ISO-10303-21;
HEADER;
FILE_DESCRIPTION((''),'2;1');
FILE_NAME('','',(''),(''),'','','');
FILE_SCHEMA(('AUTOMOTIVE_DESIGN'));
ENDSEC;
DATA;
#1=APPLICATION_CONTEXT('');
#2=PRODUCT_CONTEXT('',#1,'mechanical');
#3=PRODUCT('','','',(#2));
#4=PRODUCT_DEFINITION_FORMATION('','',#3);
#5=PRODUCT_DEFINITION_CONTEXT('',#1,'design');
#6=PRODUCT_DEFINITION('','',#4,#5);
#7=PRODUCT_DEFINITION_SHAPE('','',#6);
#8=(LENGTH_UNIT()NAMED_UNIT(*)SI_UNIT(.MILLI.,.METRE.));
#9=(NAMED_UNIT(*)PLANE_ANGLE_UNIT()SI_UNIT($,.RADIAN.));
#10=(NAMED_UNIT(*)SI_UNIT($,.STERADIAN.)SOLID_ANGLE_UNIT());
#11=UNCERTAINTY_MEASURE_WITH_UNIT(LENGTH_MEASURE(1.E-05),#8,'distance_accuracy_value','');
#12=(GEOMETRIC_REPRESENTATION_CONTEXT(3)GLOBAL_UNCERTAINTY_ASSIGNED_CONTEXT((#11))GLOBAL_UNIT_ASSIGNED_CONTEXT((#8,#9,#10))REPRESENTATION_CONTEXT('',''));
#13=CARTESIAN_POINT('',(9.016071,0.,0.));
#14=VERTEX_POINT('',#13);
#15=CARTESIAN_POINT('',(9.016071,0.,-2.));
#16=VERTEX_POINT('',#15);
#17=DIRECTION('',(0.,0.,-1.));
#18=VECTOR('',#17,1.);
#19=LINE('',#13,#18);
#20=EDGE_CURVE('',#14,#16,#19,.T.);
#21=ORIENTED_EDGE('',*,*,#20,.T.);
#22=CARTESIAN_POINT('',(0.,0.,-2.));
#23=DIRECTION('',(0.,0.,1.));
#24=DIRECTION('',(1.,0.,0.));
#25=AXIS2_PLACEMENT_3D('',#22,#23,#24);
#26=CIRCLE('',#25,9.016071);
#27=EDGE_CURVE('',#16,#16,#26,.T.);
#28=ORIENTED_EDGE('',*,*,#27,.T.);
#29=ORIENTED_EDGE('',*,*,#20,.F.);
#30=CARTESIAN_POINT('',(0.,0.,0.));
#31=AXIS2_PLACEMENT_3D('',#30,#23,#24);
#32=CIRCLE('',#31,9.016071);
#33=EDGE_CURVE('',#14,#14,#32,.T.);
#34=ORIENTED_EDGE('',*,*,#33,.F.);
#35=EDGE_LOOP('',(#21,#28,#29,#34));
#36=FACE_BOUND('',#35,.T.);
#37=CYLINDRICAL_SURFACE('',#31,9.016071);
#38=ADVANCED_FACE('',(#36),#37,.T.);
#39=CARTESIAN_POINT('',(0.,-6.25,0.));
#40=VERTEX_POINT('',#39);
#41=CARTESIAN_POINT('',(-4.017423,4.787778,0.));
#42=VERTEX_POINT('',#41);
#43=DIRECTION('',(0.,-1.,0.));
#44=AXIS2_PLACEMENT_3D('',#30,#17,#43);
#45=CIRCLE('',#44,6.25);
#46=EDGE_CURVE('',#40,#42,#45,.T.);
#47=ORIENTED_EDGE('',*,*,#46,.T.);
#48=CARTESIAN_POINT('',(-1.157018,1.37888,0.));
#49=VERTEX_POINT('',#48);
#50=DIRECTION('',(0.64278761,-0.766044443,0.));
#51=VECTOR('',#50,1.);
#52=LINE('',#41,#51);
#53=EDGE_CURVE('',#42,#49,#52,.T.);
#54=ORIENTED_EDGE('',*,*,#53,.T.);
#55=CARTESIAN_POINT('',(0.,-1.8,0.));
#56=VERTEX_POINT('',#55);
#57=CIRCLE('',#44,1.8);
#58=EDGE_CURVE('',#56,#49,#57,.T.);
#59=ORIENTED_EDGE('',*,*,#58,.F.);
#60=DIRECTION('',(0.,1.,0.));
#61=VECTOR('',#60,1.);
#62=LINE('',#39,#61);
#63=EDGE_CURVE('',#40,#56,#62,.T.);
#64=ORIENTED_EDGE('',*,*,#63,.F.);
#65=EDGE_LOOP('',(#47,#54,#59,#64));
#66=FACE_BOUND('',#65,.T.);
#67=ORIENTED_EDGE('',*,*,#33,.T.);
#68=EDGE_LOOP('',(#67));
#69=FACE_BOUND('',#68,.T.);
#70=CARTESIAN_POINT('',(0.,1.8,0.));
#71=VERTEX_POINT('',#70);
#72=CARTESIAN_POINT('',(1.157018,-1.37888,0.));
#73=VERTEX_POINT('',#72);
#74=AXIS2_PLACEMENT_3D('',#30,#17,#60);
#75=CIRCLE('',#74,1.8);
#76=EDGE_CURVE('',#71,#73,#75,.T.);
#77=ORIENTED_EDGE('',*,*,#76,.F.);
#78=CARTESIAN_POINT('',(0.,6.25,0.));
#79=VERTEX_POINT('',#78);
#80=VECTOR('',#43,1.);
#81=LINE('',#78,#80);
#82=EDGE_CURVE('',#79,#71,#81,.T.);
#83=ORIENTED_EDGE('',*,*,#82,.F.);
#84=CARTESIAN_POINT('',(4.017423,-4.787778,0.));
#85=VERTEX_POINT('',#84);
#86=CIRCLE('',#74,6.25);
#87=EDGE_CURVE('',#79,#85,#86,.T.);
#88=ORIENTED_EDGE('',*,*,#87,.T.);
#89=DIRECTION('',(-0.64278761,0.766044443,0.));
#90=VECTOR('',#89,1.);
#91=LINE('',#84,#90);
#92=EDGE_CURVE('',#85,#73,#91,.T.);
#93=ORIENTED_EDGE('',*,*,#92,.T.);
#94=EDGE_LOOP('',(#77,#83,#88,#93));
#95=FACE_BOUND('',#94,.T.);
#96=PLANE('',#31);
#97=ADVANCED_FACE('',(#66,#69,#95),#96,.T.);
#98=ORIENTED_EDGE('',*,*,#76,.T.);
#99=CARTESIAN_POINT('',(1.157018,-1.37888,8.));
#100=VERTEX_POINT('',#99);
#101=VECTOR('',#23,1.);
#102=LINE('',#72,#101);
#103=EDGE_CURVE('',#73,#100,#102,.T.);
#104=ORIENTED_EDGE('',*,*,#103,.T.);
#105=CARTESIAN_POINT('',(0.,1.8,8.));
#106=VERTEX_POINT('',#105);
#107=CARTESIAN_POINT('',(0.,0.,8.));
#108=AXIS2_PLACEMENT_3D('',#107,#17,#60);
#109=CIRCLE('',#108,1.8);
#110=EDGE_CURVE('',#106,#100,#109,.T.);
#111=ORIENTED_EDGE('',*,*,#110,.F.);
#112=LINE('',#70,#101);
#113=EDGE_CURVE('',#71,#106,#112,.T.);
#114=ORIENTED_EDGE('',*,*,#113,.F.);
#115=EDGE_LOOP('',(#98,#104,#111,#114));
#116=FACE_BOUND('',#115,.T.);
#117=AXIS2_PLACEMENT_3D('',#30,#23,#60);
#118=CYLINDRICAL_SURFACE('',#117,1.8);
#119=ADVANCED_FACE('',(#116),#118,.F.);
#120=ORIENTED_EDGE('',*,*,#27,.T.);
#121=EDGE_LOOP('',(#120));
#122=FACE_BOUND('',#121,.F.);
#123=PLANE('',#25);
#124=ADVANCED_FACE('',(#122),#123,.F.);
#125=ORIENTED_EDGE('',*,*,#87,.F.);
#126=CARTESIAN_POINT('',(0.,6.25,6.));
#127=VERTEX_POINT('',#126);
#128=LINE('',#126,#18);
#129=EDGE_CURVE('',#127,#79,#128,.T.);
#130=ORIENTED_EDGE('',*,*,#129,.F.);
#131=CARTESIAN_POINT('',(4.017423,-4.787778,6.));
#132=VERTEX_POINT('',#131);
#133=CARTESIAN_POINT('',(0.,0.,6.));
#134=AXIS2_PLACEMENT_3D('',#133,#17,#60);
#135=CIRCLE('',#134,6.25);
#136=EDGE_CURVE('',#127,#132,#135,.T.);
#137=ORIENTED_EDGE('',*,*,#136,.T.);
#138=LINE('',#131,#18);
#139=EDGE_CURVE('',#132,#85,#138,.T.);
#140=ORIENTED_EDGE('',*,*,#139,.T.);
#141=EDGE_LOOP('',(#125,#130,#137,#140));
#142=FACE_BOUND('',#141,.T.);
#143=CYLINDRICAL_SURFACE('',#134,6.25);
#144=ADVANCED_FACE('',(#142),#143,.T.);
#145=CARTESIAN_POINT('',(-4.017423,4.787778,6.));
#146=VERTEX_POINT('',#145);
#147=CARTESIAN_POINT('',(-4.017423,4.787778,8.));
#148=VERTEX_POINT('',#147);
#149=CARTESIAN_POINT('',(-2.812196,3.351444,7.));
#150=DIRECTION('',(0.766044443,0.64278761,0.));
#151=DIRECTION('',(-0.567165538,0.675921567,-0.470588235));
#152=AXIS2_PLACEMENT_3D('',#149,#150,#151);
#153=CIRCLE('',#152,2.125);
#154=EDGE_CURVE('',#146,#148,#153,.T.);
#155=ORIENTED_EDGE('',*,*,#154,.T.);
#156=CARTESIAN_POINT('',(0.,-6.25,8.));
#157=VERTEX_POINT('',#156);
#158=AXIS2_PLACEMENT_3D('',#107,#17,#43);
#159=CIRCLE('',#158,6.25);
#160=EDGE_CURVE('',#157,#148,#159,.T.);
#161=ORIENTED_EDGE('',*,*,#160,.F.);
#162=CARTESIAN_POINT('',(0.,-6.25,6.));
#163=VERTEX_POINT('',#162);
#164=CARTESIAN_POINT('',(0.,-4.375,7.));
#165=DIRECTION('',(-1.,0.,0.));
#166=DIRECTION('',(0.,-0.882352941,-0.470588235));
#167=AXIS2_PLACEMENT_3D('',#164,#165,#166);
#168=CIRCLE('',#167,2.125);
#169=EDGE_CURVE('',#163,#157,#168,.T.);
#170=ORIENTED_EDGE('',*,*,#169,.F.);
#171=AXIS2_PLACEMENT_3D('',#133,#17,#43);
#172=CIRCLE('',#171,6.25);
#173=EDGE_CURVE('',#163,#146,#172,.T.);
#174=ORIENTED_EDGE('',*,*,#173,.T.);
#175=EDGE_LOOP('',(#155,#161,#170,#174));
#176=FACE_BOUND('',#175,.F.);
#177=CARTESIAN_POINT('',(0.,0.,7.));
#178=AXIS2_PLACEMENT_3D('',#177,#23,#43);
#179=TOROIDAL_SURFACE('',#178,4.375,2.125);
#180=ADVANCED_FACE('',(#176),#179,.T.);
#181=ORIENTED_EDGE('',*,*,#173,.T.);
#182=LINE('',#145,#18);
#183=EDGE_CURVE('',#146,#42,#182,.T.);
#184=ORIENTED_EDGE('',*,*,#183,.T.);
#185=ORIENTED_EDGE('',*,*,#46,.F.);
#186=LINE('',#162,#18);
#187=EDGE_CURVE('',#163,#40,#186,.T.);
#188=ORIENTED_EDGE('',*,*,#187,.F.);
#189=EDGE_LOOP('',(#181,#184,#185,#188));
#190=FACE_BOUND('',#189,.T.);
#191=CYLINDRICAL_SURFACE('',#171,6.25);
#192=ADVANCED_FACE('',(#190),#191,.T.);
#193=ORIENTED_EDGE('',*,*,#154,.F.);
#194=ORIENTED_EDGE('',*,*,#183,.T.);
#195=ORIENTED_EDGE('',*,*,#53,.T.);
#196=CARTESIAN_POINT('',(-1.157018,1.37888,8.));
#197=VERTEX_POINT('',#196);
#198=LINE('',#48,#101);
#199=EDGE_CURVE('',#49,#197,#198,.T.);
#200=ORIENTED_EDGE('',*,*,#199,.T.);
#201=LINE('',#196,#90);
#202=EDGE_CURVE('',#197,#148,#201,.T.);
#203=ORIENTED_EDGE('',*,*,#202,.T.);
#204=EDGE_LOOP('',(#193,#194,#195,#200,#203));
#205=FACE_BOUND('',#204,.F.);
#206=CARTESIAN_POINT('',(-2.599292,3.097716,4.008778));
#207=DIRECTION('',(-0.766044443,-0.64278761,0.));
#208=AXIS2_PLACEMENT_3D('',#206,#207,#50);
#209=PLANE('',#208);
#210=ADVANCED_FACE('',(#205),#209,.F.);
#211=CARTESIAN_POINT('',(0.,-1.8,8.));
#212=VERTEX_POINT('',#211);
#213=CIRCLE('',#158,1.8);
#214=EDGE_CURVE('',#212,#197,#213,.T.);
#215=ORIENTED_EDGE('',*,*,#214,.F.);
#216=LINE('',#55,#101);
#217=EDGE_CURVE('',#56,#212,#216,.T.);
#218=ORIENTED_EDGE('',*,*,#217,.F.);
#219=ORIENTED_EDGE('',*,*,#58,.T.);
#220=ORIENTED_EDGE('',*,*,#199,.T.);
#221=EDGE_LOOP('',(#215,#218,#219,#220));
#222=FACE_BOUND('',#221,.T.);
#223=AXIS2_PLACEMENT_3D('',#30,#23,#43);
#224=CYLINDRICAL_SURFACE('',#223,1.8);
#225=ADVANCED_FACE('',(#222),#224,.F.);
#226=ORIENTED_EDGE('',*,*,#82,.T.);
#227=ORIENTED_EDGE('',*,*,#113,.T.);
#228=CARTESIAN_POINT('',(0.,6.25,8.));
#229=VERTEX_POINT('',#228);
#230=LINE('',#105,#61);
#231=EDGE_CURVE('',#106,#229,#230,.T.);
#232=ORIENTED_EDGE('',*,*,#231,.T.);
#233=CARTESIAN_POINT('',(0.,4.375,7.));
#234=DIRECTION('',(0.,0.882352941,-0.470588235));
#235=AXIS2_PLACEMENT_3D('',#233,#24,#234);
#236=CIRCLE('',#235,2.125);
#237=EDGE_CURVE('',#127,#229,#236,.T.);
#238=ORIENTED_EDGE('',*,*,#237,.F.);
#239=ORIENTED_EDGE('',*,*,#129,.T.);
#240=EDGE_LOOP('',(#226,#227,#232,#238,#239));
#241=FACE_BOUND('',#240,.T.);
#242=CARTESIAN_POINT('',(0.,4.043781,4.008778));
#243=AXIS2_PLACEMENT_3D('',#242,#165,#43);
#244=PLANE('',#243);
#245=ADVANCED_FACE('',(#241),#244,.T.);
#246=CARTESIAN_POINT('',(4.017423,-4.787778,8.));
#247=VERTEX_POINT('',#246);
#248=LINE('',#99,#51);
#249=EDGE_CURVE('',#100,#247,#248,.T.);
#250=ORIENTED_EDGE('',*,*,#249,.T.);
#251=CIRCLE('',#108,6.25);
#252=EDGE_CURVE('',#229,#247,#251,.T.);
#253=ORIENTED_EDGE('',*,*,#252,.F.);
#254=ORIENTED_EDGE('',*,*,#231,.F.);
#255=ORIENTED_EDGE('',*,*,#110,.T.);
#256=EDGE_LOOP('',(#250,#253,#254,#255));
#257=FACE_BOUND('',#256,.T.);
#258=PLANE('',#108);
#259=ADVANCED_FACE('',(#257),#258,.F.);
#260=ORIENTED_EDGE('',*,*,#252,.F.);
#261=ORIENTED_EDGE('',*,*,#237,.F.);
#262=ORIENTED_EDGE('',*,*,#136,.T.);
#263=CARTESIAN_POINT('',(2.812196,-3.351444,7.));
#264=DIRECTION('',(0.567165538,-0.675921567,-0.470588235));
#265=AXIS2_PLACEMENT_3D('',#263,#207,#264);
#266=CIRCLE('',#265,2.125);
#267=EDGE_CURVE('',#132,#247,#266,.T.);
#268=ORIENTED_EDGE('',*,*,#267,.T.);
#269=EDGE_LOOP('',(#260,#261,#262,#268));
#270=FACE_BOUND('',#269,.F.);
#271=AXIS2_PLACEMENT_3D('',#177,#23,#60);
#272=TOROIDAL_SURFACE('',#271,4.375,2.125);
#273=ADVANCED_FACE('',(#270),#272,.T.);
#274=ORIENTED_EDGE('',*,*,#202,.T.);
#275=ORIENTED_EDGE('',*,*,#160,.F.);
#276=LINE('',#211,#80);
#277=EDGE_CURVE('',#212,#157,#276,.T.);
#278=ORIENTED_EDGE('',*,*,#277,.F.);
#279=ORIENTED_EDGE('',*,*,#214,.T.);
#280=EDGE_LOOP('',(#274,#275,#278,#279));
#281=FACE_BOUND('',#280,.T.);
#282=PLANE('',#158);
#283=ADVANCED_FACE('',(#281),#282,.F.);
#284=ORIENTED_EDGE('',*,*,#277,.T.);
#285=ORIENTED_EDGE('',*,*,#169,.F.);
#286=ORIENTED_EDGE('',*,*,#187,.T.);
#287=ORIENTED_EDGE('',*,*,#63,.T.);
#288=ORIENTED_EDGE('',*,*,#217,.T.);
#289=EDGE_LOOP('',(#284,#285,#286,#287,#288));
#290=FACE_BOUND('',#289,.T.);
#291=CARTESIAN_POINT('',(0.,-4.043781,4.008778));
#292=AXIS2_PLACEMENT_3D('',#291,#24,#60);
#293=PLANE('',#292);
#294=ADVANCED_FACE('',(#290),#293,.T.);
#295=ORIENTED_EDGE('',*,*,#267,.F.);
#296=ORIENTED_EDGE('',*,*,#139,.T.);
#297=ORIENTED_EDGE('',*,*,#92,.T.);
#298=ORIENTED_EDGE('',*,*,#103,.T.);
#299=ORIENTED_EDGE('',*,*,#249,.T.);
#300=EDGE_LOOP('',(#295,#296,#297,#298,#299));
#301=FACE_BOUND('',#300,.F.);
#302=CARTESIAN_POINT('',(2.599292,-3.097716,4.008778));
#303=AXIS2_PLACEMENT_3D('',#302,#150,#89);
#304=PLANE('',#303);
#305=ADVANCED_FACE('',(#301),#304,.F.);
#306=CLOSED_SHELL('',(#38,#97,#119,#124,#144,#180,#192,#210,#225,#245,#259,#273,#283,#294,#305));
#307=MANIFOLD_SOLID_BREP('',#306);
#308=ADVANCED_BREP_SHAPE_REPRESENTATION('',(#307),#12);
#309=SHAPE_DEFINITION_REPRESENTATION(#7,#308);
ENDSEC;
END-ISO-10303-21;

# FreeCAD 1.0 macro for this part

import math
import FreeCAD as App
import Part
import Sketcher

V = App.Vector
Q = App.Units.Quantity

doc = App.newDocument("Part")
body = doc.addObject("PartDesign::Body", "Body")

# Sketch on XY plane
sketch1 = body.newObject("Sketcher::SketchObject", "Sketch")
sketch1.AttachmentSupport = (doc.getObject("XY_Plane"), [""])
sketch1.MapMode = "FlatFace"
sketch1.addGeometry(Part.Circle(V(0, 0, 0), V(0, 0, 1), 9), False)
sketch1.addConstraint([
    Sketcher.Constraint("Coincident", 0, 3, -1, 1),
    Sketcher.Constraint("Diameter", 0, Q("18.032142 mm")),
])
pad1 = body.newObject("PartDesign::Pad", "Pad")
pad1.Profile = sketch1
pad1.Length = 2
pad1.Reversed = True

# Sketch on YZ plane
sketch2 = body.newObject("Sketcher::SketchObject", "Sketch001")
sketch2.AttachmentSupport = (doc.getObject("YZ_Plane"), [""])
sketch2.MapMode = "FlatFace"
sketch2.addGeometry([
    Part.LineSegment(V(1.8, 8, 0), V(1.8, 0, 0)),  # 0
    Part.LineSegment(V(1.8, 0, 0), V(6.2, 0, 0)),  # 1
    Part.LineSegment(V(6.2, 0, 0), V(6.2, 6, 0)),  # 2
    Part.ArcOfCircle(Part.Circle(V(4.4, 7, 0), V(0, 0, 1), 2.1), math.radians(-28), math.radians(28)),  # 3
    Part.LineSegment(V(6.2, 8, 0), V(1.8, 8, 0)),  # 4
], False)
sketch2.addConstraint([
    Sketcher.Constraint("Coincident", 0, 2, 1, 1),
    Sketcher.Constraint("Coincident", 1, 2, 2, 1),
    Sketcher.Constraint("Coincident", 2, 2, 3, 1),
    Sketcher.Constraint("Coincident", 3, 2, 4, 1),
    Sketcher.Constraint("Coincident", 4, 2, 0, 1),
    Sketcher.Constraint("Vertical", 0),
    Sketcher.Constraint("Horizontal", 1),
    Sketcher.Constraint("Vertical", 2),
    Sketcher.Constraint("Horizontal", 4),
    Sketcher.Constraint("PointOnObject", 0, 2, -1),
    Sketcher.Constraint("Vertical", 2, 2, 3, 2),
    Sketcher.Constraint("DistanceY", 0, 2, 0, 1, Q("8 mm")),
    Sketcher.Constraint("DistanceY", 2, 1, 2, 2, Q("6 mm")),
    Sketcher.Constraint("Radius", 3, Q("2.125 mm")),
    Sketcher.Constraint("DistanceX", 1, 1, 1, 2, Q("4.45 mm")),
    Sketcher.Constraint("DistanceX", -1, 1, 0, 2, Q("1.8 mm")),
])
revolution = body.newObject("PartDesign::Revolution", "Revolution")
revolution.Profile = sketch2
revolution.ReferenceAxis = (sketch2, ["V_Axis"])
revolution.Angle = 140
revolution.Reversed = True
doc.recompute()

polarpattern = body.newObject("PartDesign::PolarPattern", "PolarPattern")
polarpattern.Originals = [revolution]
polarpattern.Axis = (doc.getObject("Z_Axis"), [""])
polarpattern.Angle = 360
polarpattern.Occurrences = 2
body.Tip = polarpattern

doc.recompute()
